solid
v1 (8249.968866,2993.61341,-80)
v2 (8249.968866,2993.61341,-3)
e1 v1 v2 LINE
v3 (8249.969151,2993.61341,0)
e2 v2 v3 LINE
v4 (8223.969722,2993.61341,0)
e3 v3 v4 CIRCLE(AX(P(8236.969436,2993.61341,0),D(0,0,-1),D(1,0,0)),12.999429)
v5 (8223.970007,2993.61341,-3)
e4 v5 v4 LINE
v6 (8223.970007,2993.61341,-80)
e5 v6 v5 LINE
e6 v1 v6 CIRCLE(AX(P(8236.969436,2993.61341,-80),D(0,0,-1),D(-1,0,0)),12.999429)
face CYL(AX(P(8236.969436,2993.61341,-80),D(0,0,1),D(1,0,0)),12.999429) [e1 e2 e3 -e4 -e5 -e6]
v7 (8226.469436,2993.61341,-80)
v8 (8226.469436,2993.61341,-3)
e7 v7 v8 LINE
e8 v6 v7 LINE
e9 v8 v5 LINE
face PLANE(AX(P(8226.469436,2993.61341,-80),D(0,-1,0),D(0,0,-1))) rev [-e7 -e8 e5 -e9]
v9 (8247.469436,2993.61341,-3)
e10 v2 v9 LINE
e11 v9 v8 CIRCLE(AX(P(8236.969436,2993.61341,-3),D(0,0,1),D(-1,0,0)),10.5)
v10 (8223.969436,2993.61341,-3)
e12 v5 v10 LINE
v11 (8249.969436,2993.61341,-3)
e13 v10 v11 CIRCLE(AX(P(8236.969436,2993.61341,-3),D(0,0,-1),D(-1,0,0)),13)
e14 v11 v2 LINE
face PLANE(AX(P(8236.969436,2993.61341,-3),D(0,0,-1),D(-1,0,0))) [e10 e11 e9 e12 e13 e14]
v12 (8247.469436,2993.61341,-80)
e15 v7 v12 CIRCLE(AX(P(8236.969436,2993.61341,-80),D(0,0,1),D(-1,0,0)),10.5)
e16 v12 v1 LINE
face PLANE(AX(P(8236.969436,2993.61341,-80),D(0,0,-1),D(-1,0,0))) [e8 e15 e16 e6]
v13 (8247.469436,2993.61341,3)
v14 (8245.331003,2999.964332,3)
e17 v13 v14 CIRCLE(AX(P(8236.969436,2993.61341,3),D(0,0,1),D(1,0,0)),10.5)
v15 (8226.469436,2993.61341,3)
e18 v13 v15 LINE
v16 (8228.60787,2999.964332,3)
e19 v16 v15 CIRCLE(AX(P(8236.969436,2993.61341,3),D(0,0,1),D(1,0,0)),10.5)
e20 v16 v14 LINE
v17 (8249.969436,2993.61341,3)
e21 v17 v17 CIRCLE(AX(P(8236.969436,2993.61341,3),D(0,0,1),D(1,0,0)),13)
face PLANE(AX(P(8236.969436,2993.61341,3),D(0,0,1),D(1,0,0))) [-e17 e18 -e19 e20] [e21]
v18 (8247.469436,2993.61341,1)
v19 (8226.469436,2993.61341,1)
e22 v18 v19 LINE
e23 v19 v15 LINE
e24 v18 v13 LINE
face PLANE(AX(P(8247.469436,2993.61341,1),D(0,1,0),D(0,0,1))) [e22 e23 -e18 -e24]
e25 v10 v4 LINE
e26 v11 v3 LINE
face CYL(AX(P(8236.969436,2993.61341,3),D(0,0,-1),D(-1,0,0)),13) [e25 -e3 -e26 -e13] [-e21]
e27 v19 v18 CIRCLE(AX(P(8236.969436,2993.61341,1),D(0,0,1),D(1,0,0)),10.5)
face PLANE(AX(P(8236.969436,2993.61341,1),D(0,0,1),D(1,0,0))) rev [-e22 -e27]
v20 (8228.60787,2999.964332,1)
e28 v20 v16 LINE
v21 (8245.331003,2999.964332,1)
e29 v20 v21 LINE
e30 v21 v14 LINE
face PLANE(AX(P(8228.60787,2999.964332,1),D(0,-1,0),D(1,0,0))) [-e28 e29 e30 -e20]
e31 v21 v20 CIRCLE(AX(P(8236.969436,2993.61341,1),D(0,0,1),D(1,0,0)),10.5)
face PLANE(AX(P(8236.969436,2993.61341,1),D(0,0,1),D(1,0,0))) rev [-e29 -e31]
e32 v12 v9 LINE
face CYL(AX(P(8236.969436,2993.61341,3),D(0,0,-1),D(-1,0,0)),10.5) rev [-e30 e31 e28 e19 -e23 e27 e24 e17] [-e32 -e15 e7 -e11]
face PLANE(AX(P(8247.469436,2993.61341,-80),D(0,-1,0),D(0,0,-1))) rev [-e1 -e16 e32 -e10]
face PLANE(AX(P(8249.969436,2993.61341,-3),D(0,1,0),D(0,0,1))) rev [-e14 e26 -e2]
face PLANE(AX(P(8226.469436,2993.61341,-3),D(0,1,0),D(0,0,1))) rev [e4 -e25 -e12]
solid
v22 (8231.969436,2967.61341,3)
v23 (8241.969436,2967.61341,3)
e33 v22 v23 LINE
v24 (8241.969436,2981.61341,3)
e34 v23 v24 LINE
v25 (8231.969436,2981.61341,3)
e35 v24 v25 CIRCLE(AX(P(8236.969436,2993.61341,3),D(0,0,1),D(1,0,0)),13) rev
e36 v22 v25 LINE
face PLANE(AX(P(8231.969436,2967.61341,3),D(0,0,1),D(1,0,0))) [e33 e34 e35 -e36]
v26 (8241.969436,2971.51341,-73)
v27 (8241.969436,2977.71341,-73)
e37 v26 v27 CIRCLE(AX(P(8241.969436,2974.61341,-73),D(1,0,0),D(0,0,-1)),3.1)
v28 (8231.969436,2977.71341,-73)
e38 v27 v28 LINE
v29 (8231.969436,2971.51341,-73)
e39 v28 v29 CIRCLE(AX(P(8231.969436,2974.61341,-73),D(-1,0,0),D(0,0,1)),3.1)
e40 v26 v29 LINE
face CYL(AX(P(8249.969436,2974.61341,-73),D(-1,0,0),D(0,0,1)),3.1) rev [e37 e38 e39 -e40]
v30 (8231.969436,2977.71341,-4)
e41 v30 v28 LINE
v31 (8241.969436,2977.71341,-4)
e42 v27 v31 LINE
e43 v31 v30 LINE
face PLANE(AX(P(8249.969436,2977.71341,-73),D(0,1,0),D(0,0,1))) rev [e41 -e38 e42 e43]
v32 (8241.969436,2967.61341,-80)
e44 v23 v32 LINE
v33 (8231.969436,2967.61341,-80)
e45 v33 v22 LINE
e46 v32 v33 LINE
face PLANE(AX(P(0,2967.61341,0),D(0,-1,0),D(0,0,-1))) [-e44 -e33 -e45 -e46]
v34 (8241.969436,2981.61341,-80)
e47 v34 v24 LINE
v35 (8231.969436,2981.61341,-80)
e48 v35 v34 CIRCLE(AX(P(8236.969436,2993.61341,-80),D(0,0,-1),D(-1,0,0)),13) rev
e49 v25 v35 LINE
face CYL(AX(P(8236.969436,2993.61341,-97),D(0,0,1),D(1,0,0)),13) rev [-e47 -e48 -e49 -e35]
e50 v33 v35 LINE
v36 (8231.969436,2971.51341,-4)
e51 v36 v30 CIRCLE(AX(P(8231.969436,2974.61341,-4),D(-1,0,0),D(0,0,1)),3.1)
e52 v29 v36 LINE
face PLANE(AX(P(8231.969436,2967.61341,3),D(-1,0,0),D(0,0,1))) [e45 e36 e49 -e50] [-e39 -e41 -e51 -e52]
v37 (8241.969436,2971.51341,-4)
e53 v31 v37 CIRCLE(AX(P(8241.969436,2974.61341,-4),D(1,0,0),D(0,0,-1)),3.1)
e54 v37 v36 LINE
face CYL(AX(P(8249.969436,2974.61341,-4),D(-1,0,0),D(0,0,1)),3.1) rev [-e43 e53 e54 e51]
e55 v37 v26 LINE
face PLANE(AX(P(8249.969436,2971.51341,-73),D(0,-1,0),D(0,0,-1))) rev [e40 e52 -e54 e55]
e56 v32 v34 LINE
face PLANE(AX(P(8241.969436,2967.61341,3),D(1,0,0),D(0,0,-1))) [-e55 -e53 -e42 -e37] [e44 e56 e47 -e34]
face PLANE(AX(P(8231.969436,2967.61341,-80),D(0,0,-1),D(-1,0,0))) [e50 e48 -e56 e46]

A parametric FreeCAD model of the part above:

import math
import FreeCAD as App
import Part
import Sketcher
Q = App.Units.Quantity


def add_polygon(sketch, points):
    """Adds a closed chain of lines whose ends are joined by coincident constraints."""
    first, n = sketch.GeometryCount, len(points)
    for a, b in zip(points, points[1:] + points[:1]):
        sketch.addGeometry(Part.LineSegment(App.Vector(*a, 0), App.Vector(*b, 0)), False)
    for i in range(n):
        sketch.addConstraint(Sketcher.Constraint("Coincident", first + i, 2, first + (i + 1) % n, 1))

doc = App.newDocument("Part")
body = doc.addObject("PartDesign::Body", "Body")

sketch1 = body.newObject("Sketcher::SketchObject", "Sketch")
sketch1.AttachmentSupport = (doc.getObject("XY_Plane"), [""])
sketch1.MapMode = "FlatFace"
sketch1.addGeometry([
    Part.Circle(App.Vector(8237, 2994, 0), App.Vector(0, 0, 1), 13),
    Part.Circle(App.Vector(8237, 2994, 0), App.Vector(0, 0, 1), 10),
], False)
sketch1.addConstraint([
    Sketcher.Constraint("Coincident", 1, 3, 0, 3),
    Sketcher.Constraint("Diameter", 0, Q("26 mm")),
    Sketcher.Constraint("Diameter", 1, Q("21 mm")),
    Sketcher.Constraint("DistanceY", -1, 1, 0, 3, Q("2993.61341 mm")),
    Sketcher.Constraint("DistanceX", -1, 1, 0, 3, Q("8236.969436 mm")),
])
pad1 = body.newObject("PartDesign::Pad", "Pad")
pad1.Profile = sketch1
pad1.Length = 3

sketch2 = body.newObject("Sketcher::SketchObject", "Sketch001")
sketch2.AttachmentSupport = (doc.getObject("XY_Plane"), [""])
sketch2.MapMode = "FlatFace"
sketch2.AttachmentOffset = App.Placement(App.Vector(0, 0, 1), App.Rotation())
sketch2.addGeometry([
    Part.LineSegment(App.Vector(8247, 2994, 0), App.Vector(8226, 2994, 0)),
    Part.ArcOfCircle(Part.Circle(App.Vector(8237, 2994, 0), App.Vector(0, 0, 1), 10), math.radians(180), math.radians(360)),
    Part.LineSegment(App.Vector(8229, 3000, 0), App.Vector(8245, 3000, 0)),
    Part.ArcOfCircle(Part.Circle(App.Vector(8237, 2994, 0), App.Vector(0, 0, 1), 11), math.radians(37), math.radians(143)),
], False)
sketch2.addConstraint([
    Sketcher.Constraint("Coincident", 0, 1, 1, 2),
    Sketcher.Constraint("Coincident", 1, 1, 0, 2),
    Sketcher.Constraint("Coincident", 2, 1, 3, 2),
    Sketcher.Constraint("Coincident", 3, 1, 2, 2),
    Sketcher.Constraint("Horizontal", 0),
    Sketcher.Constraint("Horizontal", 2),
    Sketcher.Constraint("Coincident", 3, 3, 1, 3),
    Sketcher.Constraint("Equal", 1, 3),
    Sketcher.Constraint("Horizontal", 3, 3, 0, 1),
    Sketcher.Constraint("Radius", 1, Q("10.5 mm")),
    Sketcher.Constraint("DistanceX", 2, 1, 2, 2, Q("16.723133 mm")),
    Sketcher.Constraint("DistanceY", -1, 1, 1, 3, Q("2993.61341 mm")),
    Sketcher.Constraint("DistanceX", -1, 1, 2, 1, Q("8228.60787 mm")),
])
pad2 = body.newObject("PartDesign::Pad", "Pad001")
pad2.Profile = sketch2
pad2.Length = 2

sketch3 = body.newObject("Sketcher::SketchObject", "Sketch002")
sketch3.AttachmentSupport = (doc.getObject("XY_Plane"), [""])
sketch3.MapMode = "FlatFace"
sketch3.AttachmentOffset = App.Placement(App.Vector(0, 0, -80), App.Rotation())
sketch3.addGeometry([
    Part.LineSegment(App.Vector(8247.5, 2993.6, 0), App.Vector(8250, 2993.6, 0)),
    Part.ArcOfCircle(Part.Circle(App.Vector(8237, 2993.6, 0), App.Vector(0, 0, 1), 13), math.radians(180), math.radians(360)),
    Part.LineSegment(App.Vector(8224, 2993.6, 0), App.Vector(8226.5, 2993.6, 0)),
    Part.ArcOfCircle(Part.Circle(App.Vector(8237, 2993.6, 0), App.Vector(0, 0, 1), 10.5), math.radians(180), math.radians(360)),
], False)
sketch3.addConstraint([
    Sketcher.Constraint("Coincident", 0, 2, 1, 2),
    Sketcher.Constraint("Coincident", 1, 1, 2, 1),
    Sketcher.Constraint("Coincident", 2, 2, 3, 1),
    Sketcher.Constraint("Coincident", 3, 2, 0, 1),
    Sketcher.Constraint("Horizontal", 0),
    Sketcher.Constraint("Horizontal", 2),
    Sketcher.Constraint("Coincident", 3, 3, 1, 3),
    Sketcher.Constraint("Horizontal", 3, 3, 0, 2),
    Sketcher.Constraint("Horizontal", 0, 2, 1, 1),
    Sketcher.Constraint("Radius", 3, Q("10.5 mm")),
    Sketcher.Constraint("Radius", 1, Q("12.999429 mm")),
    Sketcher.Constraint("DistanceY", -1, 1, 1, 3, Q("2993.61341 mm")),
    Sketcher.Constraint("DistanceX", -1, 1, 1, 3, Q("8236.969436 mm")),
])
pad3 = body.newObject("PartDesign::Pad", "Pad002")
pad3.Profile = sketch3
pad3.Length = 80

sketch4 = body.newObject("Sketcher::SketchObject", "Sketch003")
sketch4.AttachmentSupport = (doc.getObject("XY_Plane"), [""])
sketch4.MapMode = "FlatFace"
sketch4.AttachmentOffset = App.Placement(App.Vector(0, 0, -3), App.Rotation())
sketch4.addGeometry([
    Part.LineSegment(App.Vector(8250, 2993.6, 0), App.Vector(8247.5, 2993.6, 0)),
    Part.ArcOfCircle(Part.Circle(App.Vector(8237, 2993.6, 0), App.Vector(0, 0, 1), 10.5), math.radians(0), math.radians(180)),
    Part.LineSegment(App.Vector(8226.5, 2993.6, 0), App.Vector(8224, 2993.6, 0)),
    Part.ArcOfCircle(Part.Circle(App.Vector(8237, 2993.6, 0), App.Vector(0, 0, 1), 13), math.radians(0), math.radians(180)),
], False)
sketch4.addConstraint([
    Sketcher.Constraint("Coincident", 0, 2, 1, 1),
    Sketcher.Constraint("Coincident", 1, 2, 2, 1),
    Sketcher.Constraint("Coincident", 2, 2, 3, 2),
    Sketcher.Constraint("Coincident", 3, 1, 0, 1),
    Sketcher.Constraint("Horizontal", 0),
    Sketcher.Constraint("Horizontal", 2),
    Sketcher.Constraint("Coincident", 3, 3, 1, 3),
    Sketcher.Constraint("Horizontal", 3, 3, 0, 2),
    Sketcher.Constraint("Horizontal", 0, 2, 1, 2),
    Sketcher.Constraint("Radius", 3, Q("13 mm")),
    Sketcher.Constraint("Radius", 1, Q("10.5 mm")),
    Sketcher.Constraint("DistanceY", -1, 1, 1, 3, Q("2993.61341 mm")),
    Sketcher.Constraint("DistanceX", -1, 1, 1, 3, Q("8236.969436 mm")),
])
pad4 = body.newObject("PartDesign::Pad", "Pad003")
pad4.Profile = sketch4
pad4.Length = 3
body2 = doc.addObject("PartDesign::Body", "Body001")

sketch5 = body2.newObject("Sketcher::SketchObject", "Sketch004")
sketch5.AttachmentSupport = (doc.getObject("XZ_Plane001"), [""])
sketch5.MapMode = "FlatFace"
sketch5.AttachmentOffset = App.Placement(App.Vector(0, 0, -2993.61341), App.Rotation())
add_polygon(sketch5, [(8232, -80), (8232, 3), (8242, 3), (8242, -80)])
sketch5.addConstraint([
    Sketcher.Constraint("Vertical", 0),
    Sketcher.Constraint("Horizontal", 1),
    Sketcher.Constraint("Vertical", 2),
    Sketcher.Constraint("Horizontal", 3),
    Sketcher.Constraint("DistanceX", 1, 1, 1, 2, Q("10 mm")),
    Sketcher.Constraint("DistanceY", 0, 1, 0, 2, Q("83 mm")),
    Sketcher.Constraint("DistanceY", -1, 1, 0, 2, Q("3 mm")),
    Sketcher.Constraint("DistanceX", -1, 1, 0, 2, Q("8231.969436 mm")),
])
pad5 = body2.newObject("PartDesign::Pad", "Pad004")
pad5.Profile = sketch5
pad5.Length = 26
body3 = doc.addObject("PartDesign::Body", "Body002")

sketch6 = body3.newObject("Sketcher::SketchObject", "Sketch005")
sketch6.AttachmentSupport = (doc.getObject("YZ_Plane002"), [""])
sketch6.MapMode = "FlatFace"
sketch6.AttachmentOffset = App.Placement(App.Vector(0, 0, 8231.969436), App.Rotation())
sketch6.addGeometry([
    Part.LineSegment(App.Vector(2977.7, -4, 0), App.Vector(2977.7, -73, 0)),
    Part.ArcOfCircle(Part.Circle(App.Vector(2974.6, -73, 0), App.Vector(0, 0, 1), 3.1), math.radians(180), math.radians(360)),
    Part.LineSegment(App.Vector(2971.5, -73, 0), App.Vector(2971.5, -4, 0)),
    Part.ArcOfCircle(Part.Circle(App.Vector(2974.6, -4, 0), App.Vector(0, 0, 1), 3.1), math.radians(0), math.radians(180)),
], False)
sketch6.addConstraint([
    Sketcher.Constraint("Tangent", 0, 2, 1, 2),
    Sketcher.Constraint("Tangent", 1, 1, 2, 1),
    Sketcher.Constraint("Tangent", 2, 2, 3, 2),
    Sketcher.Constraint("Tangent", 3, 1, 0, 1),
    Sketcher.Constraint("Vertical", 0),
    Sketcher.Constraint("Vertical", 2),
    Sketcher.Constraint("Radius", 1, Q("3.1 mm")),
    Sketcher.Constraint("DistanceY", 0, 2, 0, 1, Q("69 mm")),
    Sketcher.Constraint("DistanceY", 1, 3, -1, 1, Q("73 mm")),
    Sketcher.Constraint("DistanceX", -1, 1, 1, 3, Q("2974.61341 mm")),
])
pad6 = body3.newObject("PartDesign::Pad", "Pad005")
pad6.Profile = sketch6
pad6.Length = 18
doc.recompute()

boolean = body2.newObject("PartDesign::Boolean", "Boolean")
boolean.Type = "Cut"
boolean.addObjects([body3])
body4 = doc.addObject("PartDesign::Body", "Body003")

sketch7 = body4.newObject("Sketcher::SketchObject", "Sketch006")
sketch7.AttachmentSupport = (doc.getObject("XY_Plane003"), [""])
sketch7.MapMode = "FlatFace"
sketch7.AttachmentOffset = App.Placement(App.Vector(0, 0, -3), App.Rotation())
sketch7.addGeometry(Part.Circle(App.Vector(8237, 2994, 0), App.Vector(0, 0, 1), 13), False)
sketch7.addConstraint([
    Sketcher.Constraint("Diameter", 0, Q("26 mm")),
    Sketcher.Constraint("DistanceY", -1, 1, 0, 3, Q("2993.61341 mm")),
    Sketcher.Constraint("DistanceX", -1, 1, 0, 3, Q("8236.969436 mm")),
])
pad7 = body4.newObject("PartDesign::Pad", "Pad006")
pad7.Profile = sketch7
pad7.Length = 188
pad7.Midplane = True
doc.recompute()

boolean2 = body2.newObject("PartDesign::Boolean", "Boolean001")
boolean2.Type = "Cut"
boolean2.addObjects([body4])

doc.recompute()
